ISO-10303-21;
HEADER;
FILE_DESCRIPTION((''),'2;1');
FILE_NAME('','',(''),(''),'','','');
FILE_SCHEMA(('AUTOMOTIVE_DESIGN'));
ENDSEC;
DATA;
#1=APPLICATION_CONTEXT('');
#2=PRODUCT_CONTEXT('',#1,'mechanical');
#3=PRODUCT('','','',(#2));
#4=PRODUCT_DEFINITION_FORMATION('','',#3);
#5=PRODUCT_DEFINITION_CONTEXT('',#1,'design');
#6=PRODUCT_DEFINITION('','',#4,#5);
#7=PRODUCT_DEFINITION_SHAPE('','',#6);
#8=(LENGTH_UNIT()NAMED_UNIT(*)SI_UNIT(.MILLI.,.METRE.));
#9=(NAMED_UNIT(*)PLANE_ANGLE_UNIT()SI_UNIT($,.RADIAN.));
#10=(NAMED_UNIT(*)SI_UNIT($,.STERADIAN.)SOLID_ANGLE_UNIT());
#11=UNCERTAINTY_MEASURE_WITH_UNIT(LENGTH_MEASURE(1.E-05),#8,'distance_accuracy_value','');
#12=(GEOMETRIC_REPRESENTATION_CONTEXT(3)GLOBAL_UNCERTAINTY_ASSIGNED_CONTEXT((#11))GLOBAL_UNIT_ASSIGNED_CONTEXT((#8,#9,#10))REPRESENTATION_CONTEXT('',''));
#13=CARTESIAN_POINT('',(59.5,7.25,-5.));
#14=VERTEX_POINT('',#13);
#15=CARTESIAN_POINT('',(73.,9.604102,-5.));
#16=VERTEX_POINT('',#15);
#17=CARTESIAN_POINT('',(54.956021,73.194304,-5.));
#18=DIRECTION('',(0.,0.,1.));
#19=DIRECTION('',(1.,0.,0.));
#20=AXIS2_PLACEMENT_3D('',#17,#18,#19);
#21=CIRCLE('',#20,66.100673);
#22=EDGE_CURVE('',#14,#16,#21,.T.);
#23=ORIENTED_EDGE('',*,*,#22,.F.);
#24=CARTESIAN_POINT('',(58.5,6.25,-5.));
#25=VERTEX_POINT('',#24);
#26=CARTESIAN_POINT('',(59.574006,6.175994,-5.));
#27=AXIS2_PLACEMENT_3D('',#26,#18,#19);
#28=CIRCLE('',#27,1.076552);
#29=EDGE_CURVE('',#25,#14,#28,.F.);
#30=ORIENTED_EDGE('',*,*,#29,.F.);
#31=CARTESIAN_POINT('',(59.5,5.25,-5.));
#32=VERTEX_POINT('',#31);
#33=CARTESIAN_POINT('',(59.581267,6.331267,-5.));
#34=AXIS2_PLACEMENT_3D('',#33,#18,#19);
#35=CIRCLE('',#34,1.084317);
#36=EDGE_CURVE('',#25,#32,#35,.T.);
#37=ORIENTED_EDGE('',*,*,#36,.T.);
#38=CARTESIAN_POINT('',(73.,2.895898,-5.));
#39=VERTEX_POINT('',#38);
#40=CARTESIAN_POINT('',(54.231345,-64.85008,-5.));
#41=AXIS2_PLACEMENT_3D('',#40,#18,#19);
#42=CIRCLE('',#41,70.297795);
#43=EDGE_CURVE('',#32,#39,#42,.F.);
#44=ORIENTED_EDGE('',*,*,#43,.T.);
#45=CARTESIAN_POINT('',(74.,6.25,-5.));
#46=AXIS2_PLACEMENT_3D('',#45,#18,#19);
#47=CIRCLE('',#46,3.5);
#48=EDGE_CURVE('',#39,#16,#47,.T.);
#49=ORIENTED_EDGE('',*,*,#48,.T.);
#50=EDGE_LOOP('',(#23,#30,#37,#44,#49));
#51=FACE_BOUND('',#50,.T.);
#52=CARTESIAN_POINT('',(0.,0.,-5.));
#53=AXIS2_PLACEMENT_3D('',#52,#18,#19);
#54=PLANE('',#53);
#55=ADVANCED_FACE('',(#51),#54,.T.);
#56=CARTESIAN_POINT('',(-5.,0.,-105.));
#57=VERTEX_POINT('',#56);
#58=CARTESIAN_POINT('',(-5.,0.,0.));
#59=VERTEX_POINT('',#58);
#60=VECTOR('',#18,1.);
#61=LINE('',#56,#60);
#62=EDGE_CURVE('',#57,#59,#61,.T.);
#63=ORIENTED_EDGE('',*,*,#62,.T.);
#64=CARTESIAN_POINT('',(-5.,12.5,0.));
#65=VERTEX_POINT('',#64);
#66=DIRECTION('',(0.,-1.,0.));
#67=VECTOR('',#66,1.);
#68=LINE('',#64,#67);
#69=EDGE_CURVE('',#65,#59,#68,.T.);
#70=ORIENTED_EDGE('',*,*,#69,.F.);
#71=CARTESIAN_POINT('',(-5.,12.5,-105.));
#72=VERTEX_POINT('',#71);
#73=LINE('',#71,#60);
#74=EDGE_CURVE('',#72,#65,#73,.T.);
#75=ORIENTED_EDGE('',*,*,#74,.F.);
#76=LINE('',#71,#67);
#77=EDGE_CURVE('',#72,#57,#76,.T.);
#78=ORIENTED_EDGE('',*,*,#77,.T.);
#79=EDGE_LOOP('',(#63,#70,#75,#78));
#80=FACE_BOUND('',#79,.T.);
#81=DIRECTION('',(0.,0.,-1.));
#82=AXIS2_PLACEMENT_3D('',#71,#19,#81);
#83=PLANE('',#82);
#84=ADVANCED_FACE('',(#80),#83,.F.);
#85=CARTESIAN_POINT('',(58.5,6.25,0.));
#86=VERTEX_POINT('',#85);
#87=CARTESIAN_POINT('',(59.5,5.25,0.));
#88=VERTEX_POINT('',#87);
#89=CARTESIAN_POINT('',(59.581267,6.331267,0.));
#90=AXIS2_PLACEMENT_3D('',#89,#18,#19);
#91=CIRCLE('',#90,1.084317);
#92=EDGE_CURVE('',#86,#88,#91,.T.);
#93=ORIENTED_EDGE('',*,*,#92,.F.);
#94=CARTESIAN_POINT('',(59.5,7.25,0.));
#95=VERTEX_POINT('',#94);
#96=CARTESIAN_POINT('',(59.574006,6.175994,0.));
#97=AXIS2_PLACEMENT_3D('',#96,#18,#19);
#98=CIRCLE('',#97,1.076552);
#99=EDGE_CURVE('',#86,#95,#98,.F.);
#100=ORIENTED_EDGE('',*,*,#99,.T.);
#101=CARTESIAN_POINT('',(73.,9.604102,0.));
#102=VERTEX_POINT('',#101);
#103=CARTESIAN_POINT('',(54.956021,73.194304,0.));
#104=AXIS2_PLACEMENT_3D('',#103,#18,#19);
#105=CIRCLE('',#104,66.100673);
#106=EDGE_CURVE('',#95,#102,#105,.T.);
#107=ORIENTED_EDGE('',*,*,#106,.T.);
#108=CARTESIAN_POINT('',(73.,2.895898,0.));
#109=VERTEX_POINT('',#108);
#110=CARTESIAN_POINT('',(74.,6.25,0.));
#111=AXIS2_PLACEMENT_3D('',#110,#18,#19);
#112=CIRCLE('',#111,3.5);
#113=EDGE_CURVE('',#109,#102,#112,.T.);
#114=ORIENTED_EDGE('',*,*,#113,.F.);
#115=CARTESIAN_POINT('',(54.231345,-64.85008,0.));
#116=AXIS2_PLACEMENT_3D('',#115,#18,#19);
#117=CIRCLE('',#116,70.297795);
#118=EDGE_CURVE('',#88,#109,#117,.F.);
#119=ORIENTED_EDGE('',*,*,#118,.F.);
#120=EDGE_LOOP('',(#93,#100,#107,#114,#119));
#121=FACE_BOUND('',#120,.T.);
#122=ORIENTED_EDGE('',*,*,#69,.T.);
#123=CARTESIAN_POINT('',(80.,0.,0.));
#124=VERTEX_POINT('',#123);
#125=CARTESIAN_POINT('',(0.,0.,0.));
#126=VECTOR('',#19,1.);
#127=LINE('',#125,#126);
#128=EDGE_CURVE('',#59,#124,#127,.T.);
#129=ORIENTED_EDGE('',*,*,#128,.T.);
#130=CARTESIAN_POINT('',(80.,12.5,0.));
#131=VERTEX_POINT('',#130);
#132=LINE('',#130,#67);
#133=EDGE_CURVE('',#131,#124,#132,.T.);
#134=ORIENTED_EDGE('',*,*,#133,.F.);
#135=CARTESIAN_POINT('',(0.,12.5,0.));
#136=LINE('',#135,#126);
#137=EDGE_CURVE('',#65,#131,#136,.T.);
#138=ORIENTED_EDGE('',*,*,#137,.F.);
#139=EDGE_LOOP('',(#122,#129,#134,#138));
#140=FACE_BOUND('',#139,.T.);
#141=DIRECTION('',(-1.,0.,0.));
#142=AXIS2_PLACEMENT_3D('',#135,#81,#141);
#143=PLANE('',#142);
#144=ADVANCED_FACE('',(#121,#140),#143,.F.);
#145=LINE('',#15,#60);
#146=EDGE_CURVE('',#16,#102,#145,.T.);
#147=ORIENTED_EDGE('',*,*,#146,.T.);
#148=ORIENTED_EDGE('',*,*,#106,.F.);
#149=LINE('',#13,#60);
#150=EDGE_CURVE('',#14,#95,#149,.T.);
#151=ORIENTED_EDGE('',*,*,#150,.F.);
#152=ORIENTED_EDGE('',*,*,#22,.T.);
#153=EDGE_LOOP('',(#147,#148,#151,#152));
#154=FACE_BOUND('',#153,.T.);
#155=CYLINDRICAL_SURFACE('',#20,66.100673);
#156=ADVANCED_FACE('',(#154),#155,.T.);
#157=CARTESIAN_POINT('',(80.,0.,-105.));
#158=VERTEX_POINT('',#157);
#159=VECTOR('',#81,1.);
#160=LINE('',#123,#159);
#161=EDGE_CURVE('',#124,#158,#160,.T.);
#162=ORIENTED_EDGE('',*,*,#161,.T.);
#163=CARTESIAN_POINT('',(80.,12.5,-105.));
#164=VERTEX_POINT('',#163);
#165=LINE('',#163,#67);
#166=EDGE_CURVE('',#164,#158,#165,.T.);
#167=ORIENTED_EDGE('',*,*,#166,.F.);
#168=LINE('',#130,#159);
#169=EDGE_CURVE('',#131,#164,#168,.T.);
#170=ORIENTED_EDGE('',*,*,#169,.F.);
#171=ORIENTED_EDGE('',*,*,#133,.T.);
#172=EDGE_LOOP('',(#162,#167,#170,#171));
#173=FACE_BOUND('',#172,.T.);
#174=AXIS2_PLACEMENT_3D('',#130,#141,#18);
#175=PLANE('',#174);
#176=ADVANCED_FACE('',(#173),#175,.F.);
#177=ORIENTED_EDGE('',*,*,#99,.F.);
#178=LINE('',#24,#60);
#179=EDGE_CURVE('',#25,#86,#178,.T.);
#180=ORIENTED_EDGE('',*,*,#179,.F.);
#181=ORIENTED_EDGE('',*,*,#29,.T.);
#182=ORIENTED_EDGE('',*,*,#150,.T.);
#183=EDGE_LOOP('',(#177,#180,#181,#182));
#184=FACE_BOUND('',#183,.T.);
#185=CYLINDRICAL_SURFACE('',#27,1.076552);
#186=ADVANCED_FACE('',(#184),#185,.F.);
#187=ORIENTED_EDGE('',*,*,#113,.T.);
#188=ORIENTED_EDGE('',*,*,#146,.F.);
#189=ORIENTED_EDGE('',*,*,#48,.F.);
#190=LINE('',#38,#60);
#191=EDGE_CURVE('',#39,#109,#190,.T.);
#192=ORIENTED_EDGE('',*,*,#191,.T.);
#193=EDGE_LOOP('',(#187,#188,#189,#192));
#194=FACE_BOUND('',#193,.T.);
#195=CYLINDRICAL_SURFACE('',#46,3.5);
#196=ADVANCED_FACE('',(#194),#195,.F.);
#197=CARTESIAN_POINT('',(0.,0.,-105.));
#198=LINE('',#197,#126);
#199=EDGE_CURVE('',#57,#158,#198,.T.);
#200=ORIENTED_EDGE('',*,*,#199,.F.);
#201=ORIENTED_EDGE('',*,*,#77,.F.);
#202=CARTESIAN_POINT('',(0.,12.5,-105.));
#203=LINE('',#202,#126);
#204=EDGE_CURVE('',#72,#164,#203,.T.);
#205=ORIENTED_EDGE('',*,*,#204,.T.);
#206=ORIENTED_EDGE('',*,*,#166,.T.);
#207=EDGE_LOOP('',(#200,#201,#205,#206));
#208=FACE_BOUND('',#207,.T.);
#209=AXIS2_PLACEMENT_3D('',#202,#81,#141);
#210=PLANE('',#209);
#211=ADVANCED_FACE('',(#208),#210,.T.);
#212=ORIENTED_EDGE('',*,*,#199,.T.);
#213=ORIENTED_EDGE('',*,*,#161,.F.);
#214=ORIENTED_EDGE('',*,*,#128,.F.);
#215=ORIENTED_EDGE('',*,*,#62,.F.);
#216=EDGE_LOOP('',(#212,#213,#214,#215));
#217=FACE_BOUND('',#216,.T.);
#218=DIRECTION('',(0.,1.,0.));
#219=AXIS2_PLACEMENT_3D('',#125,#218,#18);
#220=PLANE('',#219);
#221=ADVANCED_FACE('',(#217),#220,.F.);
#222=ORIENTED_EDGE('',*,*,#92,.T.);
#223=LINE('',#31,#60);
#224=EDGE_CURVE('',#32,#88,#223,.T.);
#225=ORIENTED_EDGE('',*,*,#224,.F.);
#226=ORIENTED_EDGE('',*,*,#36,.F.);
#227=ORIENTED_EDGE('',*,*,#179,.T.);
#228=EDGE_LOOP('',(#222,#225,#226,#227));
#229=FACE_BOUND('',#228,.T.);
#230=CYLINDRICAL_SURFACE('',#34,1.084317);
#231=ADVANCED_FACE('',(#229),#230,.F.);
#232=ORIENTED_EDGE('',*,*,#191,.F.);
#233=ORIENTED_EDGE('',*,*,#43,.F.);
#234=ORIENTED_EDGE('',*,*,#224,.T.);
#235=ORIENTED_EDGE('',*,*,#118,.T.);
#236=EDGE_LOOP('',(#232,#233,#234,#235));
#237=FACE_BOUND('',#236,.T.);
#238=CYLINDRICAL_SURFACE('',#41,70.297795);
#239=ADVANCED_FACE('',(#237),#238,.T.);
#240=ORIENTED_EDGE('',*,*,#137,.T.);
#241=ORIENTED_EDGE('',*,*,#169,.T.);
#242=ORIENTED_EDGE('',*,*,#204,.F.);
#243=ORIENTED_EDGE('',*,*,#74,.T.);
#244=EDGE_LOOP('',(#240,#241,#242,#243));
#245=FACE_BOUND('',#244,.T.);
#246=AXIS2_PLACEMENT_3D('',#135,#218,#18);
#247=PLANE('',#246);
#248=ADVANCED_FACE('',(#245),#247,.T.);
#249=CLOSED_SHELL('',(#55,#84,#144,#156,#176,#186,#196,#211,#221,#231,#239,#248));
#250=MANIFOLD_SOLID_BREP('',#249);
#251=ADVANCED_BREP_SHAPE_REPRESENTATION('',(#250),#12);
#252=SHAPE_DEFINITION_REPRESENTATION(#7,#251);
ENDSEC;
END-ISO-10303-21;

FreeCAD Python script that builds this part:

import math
import FreeCAD as App
import Part
import Sketcher
from FreeCAD import Vector
Q = App.Units.Quantity

doc = App.newDocument("Part")
params = doc.addObject("Spreadsheet::Sheet", "Params")
for row, (alias, value) in enumerate([
    ("sketch1_width", "85 mm"),
    ("sketch1_height", "105 mm"),
    ("pad1_length", "12.5 mm"),
    ("sketch2_radius", "3.5 mm"),
    ("pocket1_length", "5 mm"),
], start=1):
    params.set(f"A{row}", alias)
    params.set(f"B{row}", "=" + value)
    params.setAlias(f"B{row}", alias)

body = doc.addObject("PartDesign::Body", "Body")

# Sketch on XZ plane
sketch1 = doc.addObject("Sketcher::SketchObject", "Sketch")
body.addObject(sketch1)
sketch1.AttachmentSupport = (doc.XZ_Plane, [""])
sketch1.MapMode = "FlatFace"
sketch1.addGeometry([
    Part.LineSegment(Vector(80, 0, 0), Vector(80, -105, 0)),
    Part.LineSegment(Vector(80, -105, 0), Vector(-5, -105, 0)),
    Part.LineSegment(Vector(-5, -105, 0), Vector(-5, 0, 0)),
    Part.LineSegment(Vector(-5, 0, 0), Vector(80, 0, 0)),
], False)
sketch1.addConstraint([
    Sketcher.Constraint("Coincident", 0, 2, 1, 1),
    Sketcher.Constraint("Coincident", 1, 2, 2, 1),
    Sketcher.Constraint("Coincident", 2, 2, 3, 1),
    Sketcher.Constraint("Coincident", 3, 2, 0, 1),
    Sketcher.Constraint("Vertical", 0),
    Sketcher.Constraint("Horizontal", 1),
    Sketcher.Constraint("Vertical", 2),
    Sketcher.Constraint("Horizontal", 3),
    Sketcher.Constraint("PointOnObject", 2, 2, -1),
    Sketcher.Constraint("DistanceX", 1, 2, 1, 1, Q("85 mm")),
    Sketcher.Constraint("DistanceY", 0, 2, 0, 1, Q("105 mm")),
    Sketcher.Constraint("DistanceX", -1, 1, 0, 2, Q("80 mm")),
])
sketch1.setExpression("Constraints[9]", "Params.sketch1_width")
sketch1.setExpression("Constraints[10]", "Params.sketch1_height")
pad1 = doc.addObject("PartDesign::Pad", "Pad")
body.addObject(pad1)
pad1.Profile = sketch1
pad1.setExpression("Length", "Params.pad1_length")
pad1.Reversed = True

# Sketch on XY plane
sketch2 = doc.addObject("Sketcher::SketchObject", "Sketch001")
body.addObject(sketch2)
sketch2.AttachmentSupport = (doc.XY_Plane, [""])
sketch2.MapMode = "FlatFace"
sketch2.addGeometry([
    Part.ArcOfCircle(Part.Circle(Vector(74, 6.2, 0), Vector(0, 0, 1), 3.5), math.radians(-107), math.radians(0)),  # 0
    Part.ArcOfCircle(Part.Circle(Vector(74, 6.2, 0), Vector(0, 0, 1), 3.5), math.radians(0), math.radians(107)),  # 1
    Part.ArcOfCircle(Part.Circle(Vector(55, 73.2, 0), Vector(0, 0, 1), 66.1), math.radians(-86.06), math.radians(-74.16)),  # 2
    Part.ArcOfCircle(Part.Circle(Vector(59.6, 6.2, 0), Vector(0, 0, 1), 1.1), math.radians(94), math.radians(176)),  # 3
    Part.ArcOfCircle(Part.Circle(Vector(59.6, 6.3, 0), Vector(0, 0, 1), 1.1), math.radians(-176), math.radians(-94)),  # 4
    Part.ArcOfCircle(Part.Circle(Vector(54.2, -64.9, 0), Vector(0, 0, 1), 70.3), math.radians(74.51), math.radians(85.7)),  # 5
], False)
sketch2.addConstraint([
    Sketcher.Constraint("Tangent", 0, 2, 1, 1),
    Sketcher.Constraint("Coincident", 1, 2, 2, 2),
    Sketcher.Constraint("Tangent", 2, 1, 3, 1),
    Sketcher.Constraint("Coincident", 3, 2, 4, 1),
    Sketcher.Constraint("Tangent", 4, 2, 5, 2),
    Sketcher.Constraint("Coincident", 5, 1, 0, 1),
    Sketcher.Constraint("Equal", 0, 1),
    Sketcher.Constraint("Horizontal", 1, 3, 0, 2),
    Sketcher.Constraint("Horizontal", 0, 2, 3, 2),
    Sketcher.Constraint("Vertical", 2, 1, 4, 2),
    Sketcher.Constraint("Vertical", 1, 2, 5, 1),
    Sketcher.Constraint("Radius", 0, Q("3.5 mm")),
    Sketcher.Constraint("DistanceX", -1, 1, 0, 3, Q("74 mm")),
    Sketcher.Constraint("DistanceX", -1, 1, 1, 2, Q("73 mm")),
    Sketcher.Constraint("DistanceY", 0, 3, 2, 1, Q("1 mm")),
    Sketcher.Constraint("DistanceX", 3, 2, 2, 1, Q("1 mm")),
    Sketcher.Constraint("DistanceY", 4, 2, 3, 2, Q("1 mm")),
    Sketcher.Constraint("DistanceX", -1, 1, 2, 1, Q("59.5 mm")),
    Sketcher.Constraint("DistanceY", -1, 1, 0, 3, Q("6.25 mm")),
    Sketcher.Constraint("Radius", 2, Q("66.100673 mm")),
    Sketcher.Constraint("Radius", 5, Q("70.297795 mm")),
])
sketch2.setExpression("Constraints[11]", "Params.sketch2_radius")
pocket1 = doc.addObject("PartDesign::Pocket", "Pocket")
body.addObject(pocket1)
pocket1.Profile = sketch2
pocket1.setExpression("Length", "Params.pocket1_length")

doc.recompute()
